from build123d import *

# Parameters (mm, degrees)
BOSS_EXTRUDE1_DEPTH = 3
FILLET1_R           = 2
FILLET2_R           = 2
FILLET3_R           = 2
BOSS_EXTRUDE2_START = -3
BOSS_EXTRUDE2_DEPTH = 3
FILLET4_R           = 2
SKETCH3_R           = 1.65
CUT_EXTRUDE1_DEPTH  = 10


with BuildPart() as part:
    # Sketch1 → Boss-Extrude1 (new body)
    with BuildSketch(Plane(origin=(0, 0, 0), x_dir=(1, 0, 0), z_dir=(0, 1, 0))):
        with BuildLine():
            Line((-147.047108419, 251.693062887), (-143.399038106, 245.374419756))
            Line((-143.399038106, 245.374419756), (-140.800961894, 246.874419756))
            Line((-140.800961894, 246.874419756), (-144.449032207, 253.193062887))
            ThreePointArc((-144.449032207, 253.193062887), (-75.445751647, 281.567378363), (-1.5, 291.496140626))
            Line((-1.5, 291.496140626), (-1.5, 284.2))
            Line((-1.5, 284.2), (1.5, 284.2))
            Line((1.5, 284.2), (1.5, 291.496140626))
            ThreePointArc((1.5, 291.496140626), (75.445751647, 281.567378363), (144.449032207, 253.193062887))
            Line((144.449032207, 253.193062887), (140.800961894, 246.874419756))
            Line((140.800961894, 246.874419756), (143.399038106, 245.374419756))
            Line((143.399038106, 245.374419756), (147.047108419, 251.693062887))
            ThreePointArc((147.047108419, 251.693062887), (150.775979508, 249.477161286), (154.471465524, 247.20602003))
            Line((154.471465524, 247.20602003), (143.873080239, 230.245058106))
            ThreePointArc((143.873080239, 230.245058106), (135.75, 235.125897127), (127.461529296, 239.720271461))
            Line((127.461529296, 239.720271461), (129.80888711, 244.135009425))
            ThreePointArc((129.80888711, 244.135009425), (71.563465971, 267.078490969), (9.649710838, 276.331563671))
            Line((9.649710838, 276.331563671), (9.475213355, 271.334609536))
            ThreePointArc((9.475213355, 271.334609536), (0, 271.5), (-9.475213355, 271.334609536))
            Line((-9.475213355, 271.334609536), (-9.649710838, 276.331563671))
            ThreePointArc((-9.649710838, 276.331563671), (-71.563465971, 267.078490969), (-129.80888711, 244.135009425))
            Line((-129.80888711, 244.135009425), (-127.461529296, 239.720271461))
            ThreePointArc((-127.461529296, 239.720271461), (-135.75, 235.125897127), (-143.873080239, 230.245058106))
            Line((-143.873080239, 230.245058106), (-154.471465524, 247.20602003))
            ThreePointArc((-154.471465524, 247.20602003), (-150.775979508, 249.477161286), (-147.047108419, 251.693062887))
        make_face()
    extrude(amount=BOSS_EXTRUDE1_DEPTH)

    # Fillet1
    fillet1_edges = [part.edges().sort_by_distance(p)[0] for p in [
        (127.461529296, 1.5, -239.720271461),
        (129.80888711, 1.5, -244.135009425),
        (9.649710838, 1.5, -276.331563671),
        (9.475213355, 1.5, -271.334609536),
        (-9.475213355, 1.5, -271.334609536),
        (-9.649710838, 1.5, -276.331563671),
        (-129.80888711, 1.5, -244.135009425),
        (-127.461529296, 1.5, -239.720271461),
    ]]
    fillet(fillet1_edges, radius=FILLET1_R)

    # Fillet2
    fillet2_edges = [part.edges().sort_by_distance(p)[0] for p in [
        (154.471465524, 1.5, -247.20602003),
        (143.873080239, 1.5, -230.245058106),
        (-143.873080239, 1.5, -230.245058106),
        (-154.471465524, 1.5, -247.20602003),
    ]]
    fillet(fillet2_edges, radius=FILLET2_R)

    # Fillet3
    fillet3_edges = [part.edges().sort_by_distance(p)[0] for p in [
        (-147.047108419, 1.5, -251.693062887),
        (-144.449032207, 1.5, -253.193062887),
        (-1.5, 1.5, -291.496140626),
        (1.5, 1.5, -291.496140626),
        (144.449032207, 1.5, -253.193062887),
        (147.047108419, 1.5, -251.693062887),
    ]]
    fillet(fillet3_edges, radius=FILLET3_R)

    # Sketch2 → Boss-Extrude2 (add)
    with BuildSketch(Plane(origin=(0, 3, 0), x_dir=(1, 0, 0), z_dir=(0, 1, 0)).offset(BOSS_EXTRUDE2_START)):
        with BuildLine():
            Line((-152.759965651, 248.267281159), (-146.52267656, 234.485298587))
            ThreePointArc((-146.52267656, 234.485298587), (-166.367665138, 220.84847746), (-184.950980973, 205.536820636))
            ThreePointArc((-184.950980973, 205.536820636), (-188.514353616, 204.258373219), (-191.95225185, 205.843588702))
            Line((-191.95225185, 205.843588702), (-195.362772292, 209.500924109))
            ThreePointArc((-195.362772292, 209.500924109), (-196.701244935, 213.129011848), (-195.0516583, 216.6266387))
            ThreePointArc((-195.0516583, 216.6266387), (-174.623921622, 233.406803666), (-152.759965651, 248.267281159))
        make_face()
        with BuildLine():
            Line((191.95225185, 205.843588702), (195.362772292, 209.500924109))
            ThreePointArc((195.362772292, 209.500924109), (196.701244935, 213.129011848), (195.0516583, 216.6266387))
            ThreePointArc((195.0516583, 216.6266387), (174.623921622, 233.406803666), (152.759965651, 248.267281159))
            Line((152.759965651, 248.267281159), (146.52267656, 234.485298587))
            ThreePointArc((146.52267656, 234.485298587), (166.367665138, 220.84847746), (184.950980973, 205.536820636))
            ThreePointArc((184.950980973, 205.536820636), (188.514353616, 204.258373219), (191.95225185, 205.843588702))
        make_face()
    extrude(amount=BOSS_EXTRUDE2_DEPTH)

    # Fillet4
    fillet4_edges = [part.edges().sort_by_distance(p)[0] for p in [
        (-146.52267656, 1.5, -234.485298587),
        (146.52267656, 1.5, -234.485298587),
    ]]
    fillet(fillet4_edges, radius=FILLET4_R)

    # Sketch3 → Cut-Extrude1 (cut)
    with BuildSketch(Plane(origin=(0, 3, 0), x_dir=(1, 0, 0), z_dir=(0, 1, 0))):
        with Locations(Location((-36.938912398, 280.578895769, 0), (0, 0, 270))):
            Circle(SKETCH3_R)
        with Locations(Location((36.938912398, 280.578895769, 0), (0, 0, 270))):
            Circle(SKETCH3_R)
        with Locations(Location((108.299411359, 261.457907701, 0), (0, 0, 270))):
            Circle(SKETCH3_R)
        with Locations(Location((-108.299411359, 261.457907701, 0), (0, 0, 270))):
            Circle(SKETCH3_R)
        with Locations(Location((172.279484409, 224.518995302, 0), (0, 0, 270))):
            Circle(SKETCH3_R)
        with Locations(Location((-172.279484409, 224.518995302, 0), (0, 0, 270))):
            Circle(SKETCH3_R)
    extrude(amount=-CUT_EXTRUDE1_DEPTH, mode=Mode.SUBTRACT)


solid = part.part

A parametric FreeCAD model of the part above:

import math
import FreeCAD as App
import Part
import Sketcher
from FreeCAD import Vector
Q = App.Units.Quantity


def edges_at(feature, points):
    """Names of the edges that pass closest to the given points."""
    edges = feature.Shape.Edges
    near = lambda p: min(range(len(edges)), key=lambda i: edges[i].distToShape(Part.Vertex(*p))[0])
    return sorted({f"Edge{near(p) + 1}" for p in points})

doc = App.newDocument("Part")
body = doc.addObject("PartDesign::Body", "Body")

sketch1 = body.newObject("Sketcher::SketchObject", "Sketch")
sketch1.AttachmentSupport = (doc.getObject("XZ_Plane"), [""])
sketch1.MapMode = "FlatFace"
sketch1.addGeometry([
    Part.LineSegment(Vector(-143.399038, -245.37442, 0), Vector(-147.047108, -251.693063, 0)),
    Part.ArcOfCircle(Part.Circle(Vector(0.000001, 0.000001, 0), Vector(0, 0, 1), 291.500002), math.radians(-122), math.radians(-120.294834)),
    Part.LineSegment(Vector(-154.471466, -247.20602, 0), Vector(-143.87308, -230.245058, 0)),
    Part.ArcOfCircle(Part.Circle(Vector(0, 0, 0), Vector(0, 0, 1), 271.5), math.radians(-122), math.radians(-118)),
    Part.LineSegment(Vector(-127.461529, -239.720271, 0), Vector(-129.808887, -244.135009, 0)),
    Part.ArcOfCircle(Part.Circle(Vector(0, 0, 0), Vector(0, 0, 1), 276.5), math.radians(-118), math.radians(-92)),
    Part.LineSegment(Vector(-9.649711, -276.331564, 0), Vector(-9.475213, -271.33461, 0)),
    Part.ArcOfCircle(Part.Circle(Vector(0, 0.000001, 0), Vector(0, 0, 1), 271.500001), math.radians(-92), math.radians(-88)),
    Part.LineSegment(Vector(9.475213, -271.33461, 0), Vector(9.649711, -276.331564, 0)),
    Part.ArcOfCircle(Part.Circle(Vector(0, 0, 0), Vector(0, 0, 1), 276.5), math.radians(-88), math.radians(-62)),
    Part.LineSegment(Vector(129.808887, -244.135009, 0), Vector(127.461529, -239.720271, 0)),
    Part.ArcOfCircle(Part.Circle(Vector(0, 0, 0), Vector(0, 0, 1), 271.5), math.radians(-62), math.radians(-58)),
    Part.LineSegment(Vector(143.87308, -230.245058, 0), Vector(154.471466, -247.20602, 0)),
    Part.ArcOfCircle(Part.Circle(Vector(-0.000001, 0.000001, 0), Vector(0, 0, 1), 291.500002), math.radians(-59.705166), math.radians(-58)),
    Part.LineSegment(Vector(147.047108, -251.693063, 0), Vector(143.399038, -245.37442, 0)),
    Part.LineSegment(Vector(143.399038, -245.37442, 0), Vector(140.800962, -246.87442, 0)),
    Part.LineSegment(Vector(140.800962, -246.87442, 0), Vector(144.449032, -253.193063, 0)),
    Part.ArcOfCircle(Part.Circle(Vector(0, 0, 0), Vector(0, 0, 1), 291.5), math.radians(-89.705166), math.radians(-60.294834)),
    Part.LineSegment(Vector(1.5, -291.496141, 0), Vector(1.5, -284.2, 0)),
    Part.LineSegment(Vector(1.5, -284.2, 0), Vector(-1.5, -284.2, 0)),
    Part.LineSegment(Vector(-1.5, -284.2, 0), Vector(-1.5, -291.496141, 0)),
    Part.ArcOfCircle(Part.Circle(Vector(0, 0, 0), Vector(0, 0, 1), 291.5), math.radians(-119.705166), math.radians(-90.294834)),
    Part.LineSegment(Vector(-144.449032, -253.193063, 0), Vector(-140.800962, -246.87442, 0)),
    Part.LineSegment(Vector(-140.800962, -246.87442, 0), Vector(-143.399038, -245.37442, 0)),
], False)
sketch1.addConstraint([
    Sketcher.Constraint("Coincident", 0, 2, 1, 2),
    Sketcher.Constraint("Coincident", 1, 1, 2, 1),
    Sketcher.Constraint("Coincident", 2, 2, 3, 1),
    Sketcher.Constraint("Coincident", 3, 2, 4, 1),
    Sketcher.Constraint("Coincident", 4, 2, 5, 1),
    Sketcher.Constraint("Coincident", 5, 2, 6, 1),
    Sketcher.Constraint("Coincident", 6, 2, 7, 1),
    Sketcher.Constraint("Coincident", 7, 2, 8, 1),
    Sketcher.Constraint("Coincident", 8, 2, 9, 1),
    Sketcher.Constraint("Coincident", 9, 2, 10, 1),
    Sketcher.Constraint("Coincident", 10, 2, 11, 1),
    Sketcher.Constraint("Coincident", 11, 2, 12, 1),
    Sketcher.Constraint("Coincident", 12, 2, 13, 2),
    Sketcher.Constraint("Coincident", 13, 1, 14, 1),
    Sketcher.Constraint("Coincident", 14, 2, 15, 1),
    Sketcher.Constraint("Coincident", 15, 2, 16, 1),
    Sketcher.Constraint("Coincident", 16, 2, 17, 2),
    Sketcher.Constraint("Coincident", 17, 1, 18, 1),
    Sketcher.Constraint("Coincident", 18, 2, 19, 1),
    Sketcher.Constraint("Coincident", 19, 2, 20, 1),
    Sketcher.Constraint("Coincident", 20, 2, 21, 2),
    Sketcher.Constraint("Coincident", 21, 1, 22, 1),
    Sketcher.Constraint("Coincident", 22, 2, 23, 1),
    Sketcher.Constraint("Coincident", 23, 2, 0, 1),
    Sketcher.Constraint("Vertical", 18),
    Sketcher.Constraint("Horizontal", 19),
    Sketcher.Constraint("Vertical", 20),
    Sketcher.Constraint("Coincident", 1, 3, -1, 1),
    Sketcher.Constraint("Coincident", 3, 3, -1, 1),
    Sketcher.Constraint("Coincident", 5, 3, -1, 1),
    Sketcher.Constraint("Coincident", 7, 3, -1, 1),
    Sketcher.Constraint("Coincident", 9, 3, -1, 1),
    Sketcher.Constraint("Coincident", 11, 3, -1, 1),
    Sketcher.Constraint("Coincident", 13, 3, -1, 1),
    Sketcher.Constraint("Coincident", 17, 3, -1, 1),
    Sketcher.Constraint("Coincident", 21, 3, -1, 1),
    Sketcher.Constraint("Equal", 3, 7),
    Sketcher.Constraint("Equal", 5, 9),
    Sketcher.Constraint("Equal", 7, 11),
    Sketcher.Constraint("Equal", 1, 13),
    Sketcher.Constraint("Equal", 13, 17),
    Sketcher.Constraint("Equal", 17, 21),
    Sketcher.Constraint("Symmetric", 15, 2, 22, 2, -2),
    Sketcher.Constraint("Symmetric", 14, 2, 23, 2, -2),
    Sketcher.Constraint("Perpendicular", 14, 15),
    Sketcher.Constraint("Perpendicular", 15, 16),
    Sketcher.Constraint("Parallel", 0, 22),
    Sketcher.Constraint("Perpendicular", 22, 23),
    Sketcher.Constraint("Horizontal", 6, 2, 7, 2),
    Sketcher.Constraint("Horizontal", 5, 2, 8, 2),
    Sketcher.Constraint("Horizontal", 4, 2, 9, 2),
    Sketcher.Constraint("Horizontal", 3, 2, 10, 2),
    Sketcher.Constraint("Horizontal", 2, 2, 11, 2),
    Sketcher.Constraint("Horizontal", 1, 1, 12, 2),
    Sketcher.Constraint("Equal", 18, 20),
    Sketcher.Constraint("Equal", 14, 16),
    Sketcher.Constraint("Radius", 1, Q("291.500002 mm")),
    Sketcher.Constraint("Radius", 3, Q("271.5 mm")),
    Sketcher.Constraint("Radius", 5, Q("276.5 mm")),
    Sketcher.Constraint("DistanceX", 19, 2, 19, 1, Q("3 mm")),
    Sketcher.Constraint("Angle", 0, Q("-120 deg")),
    Sketcher.Constraint("Angle", 2, Q("58 deg")),
    Sketcher.Constraint("Angle", 4, Q("-118 deg")),
    Sketcher.Constraint("Angle", 6, Q("88 deg")),
    Sketcher.Constraint("Distance", 15, Q("3 mm")),
    Sketcher.Constraint("DistanceY", 18, 2, -1, 1, Q("284.2 mm")),
    Sketcher.Constraint("DistanceY", 6, 2, 4, 2, Q("27.1996 mm")),
    Sketcher.Constraint("DistanceX", 6, 2, 9, 2, Q("139.2841 mm")),
    Sketcher.Constraint("DistanceY", 12, 2, 14, 2, Q("1.8316 mm")),
    Sketcher.Constraint("Distance", 0, Q("7.296141 mm")),
])
pad1 = body.newObject("PartDesign::Pad", "Pad")
pad1.Profile = sketch1
pad1.Length = 3
pad1.Reversed = True
doc.recompute()

fillet = body.newObject("PartDesign::Fillet", "Fillet")
fillet.Base = (pad1, edges_at(pad1, [
    (127.462, 1.5, -239.72),
    (129.809, 1.5, -244.135),
    (9.65, 1.5, -276.332),
    (9.475, 1.5, -271.335),
    (-9.475, 1.5, -271.335),
    (-9.65, 1.5, -276.332),
    (-129.809, 1.5, -244.135),
    (-127.462, 1.5, -239.72),
]))
fillet.Radius = 2
doc.recompute()

fillet2 = body.newObject("PartDesign::Fillet", "Fillet001")
fillet2.Base = (fillet, edges_at(fillet, [
    (154.471, 1.5, -247.206),
    (143.873, 1.5, -230.245),
    (-143.873, 1.5, -230.245),
    (-154.471, 1.5, -247.206),
]))
fillet2.Radius = 2
doc.recompute()

fillet3 = body.newObject("PartDesign::Fillet", "Fillet002")
fillet3.Base = (fillet2, edges_at(fillet2, [
    (-147.047, 1.5, -251.693),
    (-144.449, 1.5, -253.193),
    (-1.5, 1.5, -291.496),
    (1.5, 1.5, -291.496),
    (144.449, 1.5, -253.193),
    (147.047, 1.5, -251.693),
]))
fillet3.Radius = 2

sketch2 = body.newObject("Sketcher::SketchObject", "Sketch001")
sketch2.AttachmentSupport = (doc.getObject("XZ_Plane"), [""])
sketch2.MapMode = "FlatFace"
sketch2.addGeometry([
    Part.LineSegment(Vector(-147, -234, 0), Vector(-153, -248, 0)),
    Part.ArcOfCircle(Part.Circle(Vector(0, 0, 0), Vector(0, 0, 1), 291), math.radians(-132), math.radians(-121.6)),
    Part.ArcOfCircle(Part.Circle(Vector(-192, -213, 0), Vector(0, 0, 1), 5), math.radians(137), math.radians(228)),
    Part.LineSegment(Vector(-195, -210, 0), Vector(-192, -206, 0)),
    Part.ArcOfCircle(Part.Circle(Vector(-188, -209, 0), Vector(0, 0, 1), 5), math.radians(48), math.radians(137)),
    Part.ArcOfCircle(Part.Circle(Vector(0, 0, 0), Vector(0, 0, 1), 277), math.radians(-131.98), math.radians(-122)),
    Part.LineSegment(Vector(192, -206, 0), Vector(195, -210, 0)),
    Part.ArcOfCircle(Part.Circle(Vector(192, -213, 0), Vector(0, 0, 1), 5), math.radians(-48), math.radians(43)),
    Part.ArcOfCircle(Part.Circle(Vector(0, 0, 0), Vector(0, 0, 1), 291), math.radians(-58.4), math.radians(-48)),
    Part.LineSegment(Vector(153, -248, 0), Vector(147, -234, 0)),
    Part.ArcOfCircle(Part.Circle(Vector(0, 0, 0), Vector(0, 0, 1), 277), math.radians(-58), math.radians(-48.02)),
    Part.ArcOfCircle(Part.Circle(Vector(188, -209, 0), Vector(0, 0, 1), 5), math.radians(43), math.radians(132)),
], False)
sketch2.addConstraint([
    Sketcher.Constraint("Coincident", 0, 2, 1, 2),
    Sketcher.Constraint("Tangent", 1, 1, 2, 2),
    Sketcher.Constraint("Tangent", 2, 1, 3, 1),
    Sketcher.Constraint("Tangent", 3, 2, 4, 2),
    Sketcher.Constraint("Tangent", 4, 1, 5, 1),
    Sketcher.Constraint("Coincident", 5, 2, 0, 1),
    Sketcher.Constraint("Tangent", 6, 2, 7, 2),
    Sketcher.Constraint("Tangent", 7, 1, 8, 2),
    Sketcher.Constraint("Coincident", 8, 1, 9, 1),
    Sketcher.Constraint("Coincident", 9, 2, 10, 1),
    Sketcher.Constraint("Tangent", 10, 2, 11, 2),
    Sketcher.Constraint("Tangent", 11, 1, 6, 1),
    Sketcher.Constraint("Coincident", 1, 3, -1, 1),
    Sketcher.Constraint("Coincident", 5, 3, -1, 1),
    Sketcher.Constraint("Coincident", 8, 3, -1, 1),
    Sketcher.Constraint("Coincident", 10, 3, -1, 1),
    Sketcher.Constraint("Equal", 2, 4),
    Sketcher.Constraint("Equal", 4, 7),
    Sketcher.Constraint("Equal", 1, 8),
    Sketcher.Constraint("Equal", 5, 10),
    Sketcher.Constraint("Equal", 7, 11),
    Sketcher.Constraint("Symmetric", 2, 1, 6, 2, -2),
    Sketcher.Constraint("Horizontal", 0, 2, 8, 1),
    Sketcher.Constraint("Horizontal", 5, 2, 9, 2),
    Sketcher.Constraint("Radius", 2, Q("5 mm")),
    Sketcher.Constraint("Radius", 1, Q("291.5 mm")),
    Sketcher.Constraint("Radius", 5, Q("276.5 mm")),
    Sketcher.Constraint("Angle", 3, Q("47 deg")),
    Sketcher.Constraint("Angle", 0, Q("-114.350002 deg")),
    Sketcher.Constraint("DistanceY", 9, 2, -1, 1, Q("234.485299 mm")),
    Sketcher.Constraint("DistanceY", 0, 2, 4, 3, Q("39.013701 mm")),
])
pad2 = body.newObject("PartDesign::Pad", "Pad001")
pad2.Profile = sketch2
pad2.Length = 3
pad2.Reversed = True
doc.recompute()

fillet4 = body.newObject("PartDesign::Fillet", "Fillet003")
fillet4.Base = (pad2, edges_at(pad2, [(-146.523, 1.5, -234.485), (146.523, 1.5, -234.485)]))
fillet4.Radius = 2

sketch3 = body.newObject("Sketcher::SketchObject", "Sketch002")
sketch3.AttachmentSupport = (doc.getObject("XZ_Plane"), [""])
sketch3.MapMode = "FlatFace"
sketch3.AttachmentOffset = App.Placement(Vector(0, 0, -3), App.Rotation())
sketch3.addGeometry([
    Part.Circle(Vector(-36.9, -280.6, 0), Vector(0, 0, 1), 1.6),
    Part.Circle(Vector(36.9, -280.6, 0), Vector(0, 0, 1), 1.6),
    Part.Circle(Vector(108.3, -261.5, 0), Vector(0, 0, 1), 1.6),
    Part.Circle(Vector(-108.3, -261.5, 0), Vector(0, 0, 1), 1.6),
    Part.Circle(Vector(172.3, -224.5, 0), Vector(0, 0, 1), 1.6),
    Part.Circle(Vector(-172.3, -224.5, 0), Vector(0, 0, 1), 1.6),
], False)
sketch3.addConstraint([
    Sketcher.Constraint("Equal", 0, 1),
    Sketcher.Constraint("Equal", 1, 2),
    Sketcher.Constraint("Equal", 2, 3),
    Sketcher.Constraint("Equal", 3, 4),
    Sketcher.Constraint("Equal", 4, 5),
    Sketcher.Constraint("Symmetric", 0, 3, 1, 3, -2),
    Sketcher.Constraint("Symmetric", 2, 3, 3, 3, -2),
    Sketcher.Constraint("Symmetric", 4, 3, 5, 3, -2),
    Sketcher.Constraint("Diameter", 0, Q("3.3 mm")),
    Sketcher.Constraint("DistanceX", 1, 3, 2, 3, Q("71.360499 mm")),
    Sketcher.Constraint("DistanceY", 1, 3, 4, 3, Q("56.0599 mm")),
    Sketcher.Constraint("DistanceX", -1, 1, 2, 3, Q("108.299411 mm")),
    Sketcher.Constraint("DistanceY", 1, 3, 2, 3, Q("19.120988 mm")),
    Sketcher.Constraint("DistanceX", 5, 3, 4, 3, Q("344.558969 mm")),
    Sketcher.Constraint("DistanceY", 0, 3, -1, 1, Q("280.578896 mm")),
])
pocket1 = body.newObject("PartDesign::Pocket", "Pocket")
pocket1.Profile = sketch3
pocket1.Length = 10
pocket1.Reversed = True

doc.recompute()
